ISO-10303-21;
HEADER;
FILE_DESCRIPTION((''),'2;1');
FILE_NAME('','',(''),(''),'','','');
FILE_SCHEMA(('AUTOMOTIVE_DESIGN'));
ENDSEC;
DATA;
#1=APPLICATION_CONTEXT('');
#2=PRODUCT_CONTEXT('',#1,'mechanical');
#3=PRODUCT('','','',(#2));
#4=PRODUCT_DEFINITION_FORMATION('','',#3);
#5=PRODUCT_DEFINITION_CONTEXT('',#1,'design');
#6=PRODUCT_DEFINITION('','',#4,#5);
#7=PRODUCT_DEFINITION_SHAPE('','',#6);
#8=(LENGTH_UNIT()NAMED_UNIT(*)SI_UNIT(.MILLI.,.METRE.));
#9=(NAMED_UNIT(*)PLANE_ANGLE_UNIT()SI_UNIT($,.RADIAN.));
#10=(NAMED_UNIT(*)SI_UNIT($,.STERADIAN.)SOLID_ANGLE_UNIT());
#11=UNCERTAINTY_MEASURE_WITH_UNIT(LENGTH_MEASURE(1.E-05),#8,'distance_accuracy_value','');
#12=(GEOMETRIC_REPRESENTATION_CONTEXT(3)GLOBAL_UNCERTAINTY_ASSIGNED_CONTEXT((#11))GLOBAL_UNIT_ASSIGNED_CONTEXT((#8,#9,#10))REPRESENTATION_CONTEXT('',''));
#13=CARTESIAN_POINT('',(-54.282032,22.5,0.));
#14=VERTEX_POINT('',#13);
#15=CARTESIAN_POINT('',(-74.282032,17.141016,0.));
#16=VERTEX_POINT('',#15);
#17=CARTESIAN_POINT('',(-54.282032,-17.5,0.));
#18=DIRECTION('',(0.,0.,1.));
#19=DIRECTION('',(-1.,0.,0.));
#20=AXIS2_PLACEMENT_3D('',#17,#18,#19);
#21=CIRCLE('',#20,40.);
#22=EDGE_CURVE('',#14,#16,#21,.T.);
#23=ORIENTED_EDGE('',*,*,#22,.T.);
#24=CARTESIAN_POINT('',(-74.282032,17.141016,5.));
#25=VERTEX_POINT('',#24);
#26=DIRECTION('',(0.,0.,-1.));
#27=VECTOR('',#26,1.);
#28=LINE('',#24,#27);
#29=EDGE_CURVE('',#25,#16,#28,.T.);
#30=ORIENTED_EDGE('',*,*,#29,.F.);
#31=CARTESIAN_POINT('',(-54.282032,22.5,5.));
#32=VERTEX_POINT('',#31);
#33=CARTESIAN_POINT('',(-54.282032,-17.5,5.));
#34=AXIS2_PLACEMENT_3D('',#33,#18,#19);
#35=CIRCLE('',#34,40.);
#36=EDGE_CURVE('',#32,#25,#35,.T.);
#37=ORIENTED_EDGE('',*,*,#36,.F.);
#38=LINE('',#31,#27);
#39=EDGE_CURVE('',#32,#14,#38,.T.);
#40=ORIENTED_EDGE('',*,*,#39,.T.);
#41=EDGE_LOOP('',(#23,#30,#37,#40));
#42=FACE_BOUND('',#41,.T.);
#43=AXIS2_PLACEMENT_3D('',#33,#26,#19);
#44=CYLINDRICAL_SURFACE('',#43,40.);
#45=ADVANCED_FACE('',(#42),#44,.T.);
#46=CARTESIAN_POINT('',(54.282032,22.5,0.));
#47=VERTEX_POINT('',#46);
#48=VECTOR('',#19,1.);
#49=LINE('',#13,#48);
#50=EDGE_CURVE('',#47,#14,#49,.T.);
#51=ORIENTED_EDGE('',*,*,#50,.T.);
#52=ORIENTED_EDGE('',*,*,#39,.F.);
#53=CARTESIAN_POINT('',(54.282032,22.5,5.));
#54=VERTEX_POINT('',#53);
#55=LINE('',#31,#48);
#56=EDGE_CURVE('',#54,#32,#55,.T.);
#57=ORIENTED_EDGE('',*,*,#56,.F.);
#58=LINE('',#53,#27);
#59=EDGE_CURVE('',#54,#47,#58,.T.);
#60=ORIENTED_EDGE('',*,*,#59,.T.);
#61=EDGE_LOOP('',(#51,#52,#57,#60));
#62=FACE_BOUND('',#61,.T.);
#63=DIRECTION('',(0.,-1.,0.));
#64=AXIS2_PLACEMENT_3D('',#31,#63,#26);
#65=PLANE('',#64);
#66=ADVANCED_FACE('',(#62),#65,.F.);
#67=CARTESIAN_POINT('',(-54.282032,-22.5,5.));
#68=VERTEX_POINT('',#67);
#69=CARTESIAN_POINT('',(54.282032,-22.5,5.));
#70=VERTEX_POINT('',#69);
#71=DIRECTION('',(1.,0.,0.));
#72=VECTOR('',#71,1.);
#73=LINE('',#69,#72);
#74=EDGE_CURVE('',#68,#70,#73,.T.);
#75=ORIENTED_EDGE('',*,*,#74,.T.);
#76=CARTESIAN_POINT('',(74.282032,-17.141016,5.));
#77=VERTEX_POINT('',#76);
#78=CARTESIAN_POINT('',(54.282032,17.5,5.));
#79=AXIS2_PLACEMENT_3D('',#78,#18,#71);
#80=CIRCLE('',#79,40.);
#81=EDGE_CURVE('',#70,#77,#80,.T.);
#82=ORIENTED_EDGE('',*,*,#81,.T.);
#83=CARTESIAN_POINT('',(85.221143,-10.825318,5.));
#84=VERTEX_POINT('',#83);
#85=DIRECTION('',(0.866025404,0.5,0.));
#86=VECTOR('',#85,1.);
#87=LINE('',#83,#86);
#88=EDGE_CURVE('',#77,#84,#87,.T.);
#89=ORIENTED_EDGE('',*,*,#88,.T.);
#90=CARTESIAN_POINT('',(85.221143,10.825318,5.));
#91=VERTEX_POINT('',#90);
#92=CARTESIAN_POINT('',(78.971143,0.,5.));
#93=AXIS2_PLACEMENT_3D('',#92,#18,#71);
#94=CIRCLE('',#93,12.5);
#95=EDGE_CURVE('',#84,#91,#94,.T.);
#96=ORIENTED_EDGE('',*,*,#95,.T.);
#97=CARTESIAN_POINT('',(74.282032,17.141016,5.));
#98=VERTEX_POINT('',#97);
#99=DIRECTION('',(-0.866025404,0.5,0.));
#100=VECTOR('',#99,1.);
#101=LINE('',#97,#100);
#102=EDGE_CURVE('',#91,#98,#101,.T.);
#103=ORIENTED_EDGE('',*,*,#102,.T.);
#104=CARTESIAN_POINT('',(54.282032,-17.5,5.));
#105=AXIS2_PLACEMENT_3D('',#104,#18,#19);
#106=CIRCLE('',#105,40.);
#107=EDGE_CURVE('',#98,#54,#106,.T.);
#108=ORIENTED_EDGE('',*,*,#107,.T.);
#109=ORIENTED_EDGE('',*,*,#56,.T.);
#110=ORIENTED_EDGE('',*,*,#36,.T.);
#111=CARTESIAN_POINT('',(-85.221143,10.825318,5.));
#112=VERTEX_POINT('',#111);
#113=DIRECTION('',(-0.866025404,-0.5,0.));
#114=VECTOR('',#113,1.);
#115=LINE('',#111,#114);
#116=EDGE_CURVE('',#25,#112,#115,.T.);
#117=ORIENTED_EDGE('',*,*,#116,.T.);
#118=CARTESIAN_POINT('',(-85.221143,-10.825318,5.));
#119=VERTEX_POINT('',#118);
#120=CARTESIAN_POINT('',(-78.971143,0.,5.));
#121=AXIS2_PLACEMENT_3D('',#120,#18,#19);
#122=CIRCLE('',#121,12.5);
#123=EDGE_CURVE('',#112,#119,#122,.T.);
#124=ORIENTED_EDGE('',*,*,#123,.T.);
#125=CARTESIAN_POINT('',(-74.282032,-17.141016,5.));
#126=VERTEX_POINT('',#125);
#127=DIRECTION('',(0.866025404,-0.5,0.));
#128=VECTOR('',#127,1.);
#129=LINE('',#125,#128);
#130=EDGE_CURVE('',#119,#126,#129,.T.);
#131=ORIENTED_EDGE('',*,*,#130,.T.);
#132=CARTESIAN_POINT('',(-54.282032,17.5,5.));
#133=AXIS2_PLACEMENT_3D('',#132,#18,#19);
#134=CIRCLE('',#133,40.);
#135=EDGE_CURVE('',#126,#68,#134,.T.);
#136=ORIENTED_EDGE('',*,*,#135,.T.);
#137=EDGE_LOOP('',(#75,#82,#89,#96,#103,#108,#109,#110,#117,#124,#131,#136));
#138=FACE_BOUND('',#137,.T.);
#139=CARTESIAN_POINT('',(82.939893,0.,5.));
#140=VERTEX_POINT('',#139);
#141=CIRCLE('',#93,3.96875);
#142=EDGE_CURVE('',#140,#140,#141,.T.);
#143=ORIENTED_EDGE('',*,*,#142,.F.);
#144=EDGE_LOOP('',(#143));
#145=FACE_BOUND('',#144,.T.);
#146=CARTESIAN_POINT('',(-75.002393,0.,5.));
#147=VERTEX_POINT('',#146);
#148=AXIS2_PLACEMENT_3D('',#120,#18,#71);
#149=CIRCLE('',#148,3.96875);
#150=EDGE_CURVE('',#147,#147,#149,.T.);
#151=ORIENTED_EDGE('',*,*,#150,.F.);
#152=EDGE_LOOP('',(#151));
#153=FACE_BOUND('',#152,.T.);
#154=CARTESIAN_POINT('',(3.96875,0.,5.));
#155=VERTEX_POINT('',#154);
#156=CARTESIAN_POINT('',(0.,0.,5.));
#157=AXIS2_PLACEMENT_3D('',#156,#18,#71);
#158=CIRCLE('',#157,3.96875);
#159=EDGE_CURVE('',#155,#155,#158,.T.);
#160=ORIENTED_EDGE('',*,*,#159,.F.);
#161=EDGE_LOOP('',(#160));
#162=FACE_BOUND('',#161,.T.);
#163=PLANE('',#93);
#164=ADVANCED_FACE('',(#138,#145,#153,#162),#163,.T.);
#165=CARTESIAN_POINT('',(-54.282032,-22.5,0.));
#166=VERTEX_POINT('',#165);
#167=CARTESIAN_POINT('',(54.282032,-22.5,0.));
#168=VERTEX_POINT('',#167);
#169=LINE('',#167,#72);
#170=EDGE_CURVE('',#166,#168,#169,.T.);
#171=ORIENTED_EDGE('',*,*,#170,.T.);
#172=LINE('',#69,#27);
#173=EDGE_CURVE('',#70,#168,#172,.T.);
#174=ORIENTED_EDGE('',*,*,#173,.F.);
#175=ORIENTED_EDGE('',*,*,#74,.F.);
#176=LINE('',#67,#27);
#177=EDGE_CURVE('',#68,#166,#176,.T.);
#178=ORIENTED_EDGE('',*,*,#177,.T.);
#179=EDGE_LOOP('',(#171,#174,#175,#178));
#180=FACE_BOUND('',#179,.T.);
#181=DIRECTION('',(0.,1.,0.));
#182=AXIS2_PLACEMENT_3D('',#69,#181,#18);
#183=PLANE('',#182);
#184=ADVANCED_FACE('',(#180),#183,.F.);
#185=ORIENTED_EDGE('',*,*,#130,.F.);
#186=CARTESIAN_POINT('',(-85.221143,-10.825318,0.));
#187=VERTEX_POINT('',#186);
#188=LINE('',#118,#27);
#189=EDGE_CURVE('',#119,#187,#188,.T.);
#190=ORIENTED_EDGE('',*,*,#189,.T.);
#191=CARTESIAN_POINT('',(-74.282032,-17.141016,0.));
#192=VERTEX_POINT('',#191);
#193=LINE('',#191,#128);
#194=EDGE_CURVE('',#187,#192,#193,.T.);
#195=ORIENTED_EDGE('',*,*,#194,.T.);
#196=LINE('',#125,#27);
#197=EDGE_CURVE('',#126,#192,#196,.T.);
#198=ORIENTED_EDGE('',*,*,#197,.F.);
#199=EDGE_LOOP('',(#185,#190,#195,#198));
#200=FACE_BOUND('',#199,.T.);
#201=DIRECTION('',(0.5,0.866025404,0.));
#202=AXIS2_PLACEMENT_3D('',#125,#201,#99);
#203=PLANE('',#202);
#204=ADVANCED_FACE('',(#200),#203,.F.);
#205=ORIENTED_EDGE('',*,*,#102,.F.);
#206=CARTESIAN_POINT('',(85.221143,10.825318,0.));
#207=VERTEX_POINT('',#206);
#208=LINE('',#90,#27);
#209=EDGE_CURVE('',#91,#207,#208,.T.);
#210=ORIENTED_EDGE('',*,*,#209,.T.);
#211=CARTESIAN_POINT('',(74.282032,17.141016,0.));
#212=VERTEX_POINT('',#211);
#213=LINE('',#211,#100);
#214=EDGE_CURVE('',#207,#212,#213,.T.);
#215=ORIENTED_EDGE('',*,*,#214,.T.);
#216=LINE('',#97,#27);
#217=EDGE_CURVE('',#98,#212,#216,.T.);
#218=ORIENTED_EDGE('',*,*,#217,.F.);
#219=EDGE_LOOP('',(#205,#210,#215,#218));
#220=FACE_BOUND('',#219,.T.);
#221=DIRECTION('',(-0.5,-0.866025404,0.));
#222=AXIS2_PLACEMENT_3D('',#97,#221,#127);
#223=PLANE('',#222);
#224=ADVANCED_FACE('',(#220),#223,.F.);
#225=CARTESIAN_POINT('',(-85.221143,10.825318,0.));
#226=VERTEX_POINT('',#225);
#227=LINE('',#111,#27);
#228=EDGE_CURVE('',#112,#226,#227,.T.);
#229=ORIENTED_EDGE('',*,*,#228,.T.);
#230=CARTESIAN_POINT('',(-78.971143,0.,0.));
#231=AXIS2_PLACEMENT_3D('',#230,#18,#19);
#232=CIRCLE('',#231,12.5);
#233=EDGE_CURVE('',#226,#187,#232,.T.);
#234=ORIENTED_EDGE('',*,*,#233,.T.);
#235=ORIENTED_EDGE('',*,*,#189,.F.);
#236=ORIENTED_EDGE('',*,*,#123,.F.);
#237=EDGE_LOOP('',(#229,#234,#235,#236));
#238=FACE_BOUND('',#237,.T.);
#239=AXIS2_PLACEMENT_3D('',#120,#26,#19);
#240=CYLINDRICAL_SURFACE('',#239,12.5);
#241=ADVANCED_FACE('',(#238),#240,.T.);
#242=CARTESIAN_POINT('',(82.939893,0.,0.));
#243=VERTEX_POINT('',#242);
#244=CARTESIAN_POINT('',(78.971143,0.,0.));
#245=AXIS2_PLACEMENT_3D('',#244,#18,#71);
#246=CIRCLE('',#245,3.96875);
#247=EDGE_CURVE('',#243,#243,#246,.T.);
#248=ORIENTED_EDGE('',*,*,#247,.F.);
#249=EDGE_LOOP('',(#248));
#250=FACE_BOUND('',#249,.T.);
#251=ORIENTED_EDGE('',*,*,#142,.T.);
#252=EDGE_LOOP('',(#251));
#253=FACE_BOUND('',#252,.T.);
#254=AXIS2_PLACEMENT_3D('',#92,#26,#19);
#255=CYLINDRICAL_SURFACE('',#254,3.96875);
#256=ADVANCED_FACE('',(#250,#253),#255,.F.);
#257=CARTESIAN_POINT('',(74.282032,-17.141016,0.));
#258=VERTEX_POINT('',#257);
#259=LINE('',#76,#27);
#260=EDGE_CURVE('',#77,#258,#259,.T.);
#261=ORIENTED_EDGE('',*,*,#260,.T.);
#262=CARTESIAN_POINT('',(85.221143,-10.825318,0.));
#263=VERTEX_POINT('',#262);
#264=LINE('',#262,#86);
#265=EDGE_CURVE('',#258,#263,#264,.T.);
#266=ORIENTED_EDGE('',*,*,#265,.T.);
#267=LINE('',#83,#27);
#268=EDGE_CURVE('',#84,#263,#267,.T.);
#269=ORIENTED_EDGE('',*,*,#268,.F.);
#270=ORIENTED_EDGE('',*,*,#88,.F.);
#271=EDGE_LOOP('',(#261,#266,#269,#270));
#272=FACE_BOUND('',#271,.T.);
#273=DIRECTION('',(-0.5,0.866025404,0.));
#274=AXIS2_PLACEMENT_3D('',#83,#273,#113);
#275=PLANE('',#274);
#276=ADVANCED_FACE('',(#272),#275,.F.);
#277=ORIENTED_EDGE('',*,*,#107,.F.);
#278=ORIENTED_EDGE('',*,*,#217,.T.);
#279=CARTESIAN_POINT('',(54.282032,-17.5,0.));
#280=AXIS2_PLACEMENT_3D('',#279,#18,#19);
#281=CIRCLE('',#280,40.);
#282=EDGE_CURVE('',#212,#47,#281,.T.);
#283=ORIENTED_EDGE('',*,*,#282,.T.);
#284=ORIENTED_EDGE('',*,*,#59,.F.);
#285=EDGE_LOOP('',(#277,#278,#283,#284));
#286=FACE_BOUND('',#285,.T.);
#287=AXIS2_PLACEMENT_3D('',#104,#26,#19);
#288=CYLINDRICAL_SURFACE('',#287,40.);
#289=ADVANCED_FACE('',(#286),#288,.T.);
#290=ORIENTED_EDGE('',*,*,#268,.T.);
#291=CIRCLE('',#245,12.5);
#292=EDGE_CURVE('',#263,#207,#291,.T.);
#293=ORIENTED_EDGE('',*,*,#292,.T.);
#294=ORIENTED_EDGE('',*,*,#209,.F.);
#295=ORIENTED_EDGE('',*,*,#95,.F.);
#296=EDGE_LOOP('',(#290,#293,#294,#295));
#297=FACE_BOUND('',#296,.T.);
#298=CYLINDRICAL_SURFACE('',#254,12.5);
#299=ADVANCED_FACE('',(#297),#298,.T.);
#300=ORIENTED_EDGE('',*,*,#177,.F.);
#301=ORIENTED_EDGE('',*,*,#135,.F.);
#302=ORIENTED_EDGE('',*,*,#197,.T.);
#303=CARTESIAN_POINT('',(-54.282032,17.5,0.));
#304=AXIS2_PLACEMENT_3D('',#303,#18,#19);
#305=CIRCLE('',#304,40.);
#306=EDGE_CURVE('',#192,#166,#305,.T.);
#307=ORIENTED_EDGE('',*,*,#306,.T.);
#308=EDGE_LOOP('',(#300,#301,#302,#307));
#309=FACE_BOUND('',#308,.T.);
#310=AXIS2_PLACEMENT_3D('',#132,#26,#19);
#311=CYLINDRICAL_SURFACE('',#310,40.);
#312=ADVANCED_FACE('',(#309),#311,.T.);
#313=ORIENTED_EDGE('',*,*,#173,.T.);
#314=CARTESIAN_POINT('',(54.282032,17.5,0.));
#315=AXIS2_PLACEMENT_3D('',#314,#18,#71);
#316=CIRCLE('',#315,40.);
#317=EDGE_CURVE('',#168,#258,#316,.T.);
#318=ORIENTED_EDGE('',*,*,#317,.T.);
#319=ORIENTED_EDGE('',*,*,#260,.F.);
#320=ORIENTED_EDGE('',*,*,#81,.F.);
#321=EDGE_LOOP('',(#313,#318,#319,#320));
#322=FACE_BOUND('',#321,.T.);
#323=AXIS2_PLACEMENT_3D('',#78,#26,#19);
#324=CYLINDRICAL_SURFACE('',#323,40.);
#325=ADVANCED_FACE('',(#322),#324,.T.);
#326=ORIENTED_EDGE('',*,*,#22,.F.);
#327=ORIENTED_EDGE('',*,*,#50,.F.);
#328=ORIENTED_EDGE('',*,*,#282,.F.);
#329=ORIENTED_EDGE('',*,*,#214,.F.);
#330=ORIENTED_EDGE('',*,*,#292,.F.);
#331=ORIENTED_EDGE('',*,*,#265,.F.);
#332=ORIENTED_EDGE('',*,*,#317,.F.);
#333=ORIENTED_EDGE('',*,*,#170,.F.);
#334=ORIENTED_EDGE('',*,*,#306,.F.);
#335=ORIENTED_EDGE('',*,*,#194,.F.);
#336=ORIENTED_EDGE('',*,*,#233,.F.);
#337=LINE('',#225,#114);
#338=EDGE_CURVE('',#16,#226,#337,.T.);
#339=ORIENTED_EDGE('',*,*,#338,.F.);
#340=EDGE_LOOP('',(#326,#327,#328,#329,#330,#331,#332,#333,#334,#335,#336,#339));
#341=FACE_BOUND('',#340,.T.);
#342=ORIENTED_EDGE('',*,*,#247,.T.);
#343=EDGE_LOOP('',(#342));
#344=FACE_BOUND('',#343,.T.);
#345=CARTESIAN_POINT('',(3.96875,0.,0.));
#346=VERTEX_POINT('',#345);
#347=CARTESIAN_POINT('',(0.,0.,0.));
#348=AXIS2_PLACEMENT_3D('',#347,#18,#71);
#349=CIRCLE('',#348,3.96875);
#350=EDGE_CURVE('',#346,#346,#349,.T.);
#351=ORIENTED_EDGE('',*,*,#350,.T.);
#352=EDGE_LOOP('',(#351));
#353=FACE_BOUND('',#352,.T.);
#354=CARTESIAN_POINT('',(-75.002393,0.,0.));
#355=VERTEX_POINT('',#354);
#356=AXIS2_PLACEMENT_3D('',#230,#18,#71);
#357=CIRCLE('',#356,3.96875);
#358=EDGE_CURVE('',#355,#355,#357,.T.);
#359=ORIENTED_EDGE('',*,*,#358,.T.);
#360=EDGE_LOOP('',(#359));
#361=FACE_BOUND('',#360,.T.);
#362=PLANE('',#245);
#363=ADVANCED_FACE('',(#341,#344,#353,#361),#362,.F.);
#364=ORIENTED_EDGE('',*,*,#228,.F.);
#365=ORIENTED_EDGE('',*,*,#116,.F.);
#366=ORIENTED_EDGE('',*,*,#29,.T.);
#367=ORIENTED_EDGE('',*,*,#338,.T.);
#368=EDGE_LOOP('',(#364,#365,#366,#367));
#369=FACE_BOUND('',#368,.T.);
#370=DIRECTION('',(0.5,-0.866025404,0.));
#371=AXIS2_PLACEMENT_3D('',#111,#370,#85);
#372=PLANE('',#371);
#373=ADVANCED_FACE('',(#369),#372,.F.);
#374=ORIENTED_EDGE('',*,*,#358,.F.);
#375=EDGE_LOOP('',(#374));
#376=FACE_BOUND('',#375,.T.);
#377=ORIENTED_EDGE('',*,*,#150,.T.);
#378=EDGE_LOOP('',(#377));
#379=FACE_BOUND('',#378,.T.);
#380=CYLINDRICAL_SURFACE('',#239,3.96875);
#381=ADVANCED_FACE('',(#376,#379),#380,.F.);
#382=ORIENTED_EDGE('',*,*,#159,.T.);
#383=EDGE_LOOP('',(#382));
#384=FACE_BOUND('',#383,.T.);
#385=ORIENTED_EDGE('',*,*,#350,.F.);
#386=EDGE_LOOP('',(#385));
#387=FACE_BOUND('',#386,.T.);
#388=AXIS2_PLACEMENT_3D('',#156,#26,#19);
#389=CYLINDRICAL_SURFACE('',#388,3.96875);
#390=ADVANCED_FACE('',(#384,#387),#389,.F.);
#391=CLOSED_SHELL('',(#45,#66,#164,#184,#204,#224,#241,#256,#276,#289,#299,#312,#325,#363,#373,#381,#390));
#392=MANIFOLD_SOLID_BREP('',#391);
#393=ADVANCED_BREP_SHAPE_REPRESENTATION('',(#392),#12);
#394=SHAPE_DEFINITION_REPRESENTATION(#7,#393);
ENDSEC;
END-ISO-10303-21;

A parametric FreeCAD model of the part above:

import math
import FreeCAD as App
import Part
import Sketcher
from FreeCAD import Vector
Q = App.Units.Quantity

doc = App.newDocument("Part")
params = doc.addObject("Spreadsheet::Sheet", "Params")
for row, (alias, value) in enumerate([
    ("sketch1_radius", "40 mm"),
    ("sketch1_radius2", "12.5 mm"),
    ("pad1_length", "5 mm"),
], start=1):
    params.set(f"A{row}", alias)
    params.set(f"B{row}", "=" + value)
    params.setAlias(f"B{row}", alias)

body = doc.addObject("PartDesign::Body", "Body")

# Sketch on XY plane
sketch1 = body.newObject("Sketcher::SketchObject", "Sketch")
sketch1.AttachmentSupport = (doc.getObject("XY_Plane"), [""])
sketch1.MapMode = "FlatFace"
sketch1.addGeometry([
    Part.LineSegment(Vector(54.3, 22.5, 0), Vector(-54.3, 22.5, 0)),  # 0
    Part.ArcOfCircle(Part.Circle(Vector(-54.3, -17.5, 0), Vector(0, 0, 1), 40), math.radians(90), math.radians(120)),  # 1
    Part.LineSegment(Vector(-74.3, 17.1, 0), Vector(-85.2, 10.8, 0)),  # 2
    Part.ArcOfCircle(Part.Circle(Vector(-79, 0, 0), Vector(0, 0, 1), 12.5), math.radians(120), math.radians(240)),  # 3
    Part.LineSegment(Vector(-85.2, -10.8, 0), Vector(-74.3, -17.1, 0)),  # 4
    Part.ArcOfCircle(Part.Circle(Vector(-54.3, 17.5, 0), Vector(0, 0, 1), 40), math.radians(-120), math.radians(-90)),  # 5
    Part.LineSegment(Vector(-54.3, -22.5, 0), Vector(54.3, -22.5, 0)),  # 6
    Part.ArcOfCircle(Part.Circle(Vector(54.3, 17.5, 0), Vector(0, 0, 1), 40), math.radians(-90), math.radians(-60)),  # 7
    Part.LineSegment(Vector(74.3, -17.1, 0), Vector(85.2, -10.8, 0)),  # 8
    Part.ArcOfCircle(Part.Circle(Vector(79, 0, 0), Vector(0, 0, 1), 12.5), math.radians(-60), math.radians(60)),  # 9
    Part.LineSegment(Vector(85.2, 10.8, 0), Vector(74.3, 17.1, 0)),  # 10
    Part.ArcOfCircle(Part.Circle(Vector(54.3, -17.5, 0), Vector(0, 0, 1), 40), math.radians(60), math.radians(90)),  # 11
    Part.Circle(Vector(79, 0, 0), Vector(0, 0, 1), 4),  # 12
    Part.Circle(Vector(0, 0, 0), Vector(0, 0, 1), 4),  # 13
    Part.Circle(Vector(-79, 0, 0), Vector(0, 0, 1), 4),  # 14
], False)
sketch1.addConstraint([
    Sketcher.Constraint("Tangent", 0, 2, 1, 1),
    Sketcher.Constraint("Tangent", 1, 2, 2, 1),
    Sketcher.Constraint("Tangent", 2, 2, 3, 1),
    Sketcher.Constraint("Tangent", 3, 2, 4, 1),
    Sketcher.Constraint("Tangent", 4, 2, 5, 1),
    Sketcher.Constraint("Tangent", 5, 2, 6, 1),
    Sketcher.Constraint("Tangent", 6, 2, 7, 1),
    Sketcher.Constraint("Tangent", 7, 2, 8, 1),
    Sketcher.Constraint("Tangent", 8, 2, 9, 1),
    Sketcher.Constraint("Tangent", 9, 2, 10, 1),
    Sketcher.Constraint("Tangent", 10, 2, 11, 1),
    Sketcher.Constraint("Tangent", 11, 2, 0, 1),
    Sketcher.Constraint("Horizontal", 0),
    Sketcher.Constraint("Horizontal", 6),
    Sketcher.Constraint("Coincident", 13, 3, -1, 1),
    Sketcher.Constraint("Coincident", 12, 3, 9, 3),
    Sketcher.Constraint("Coincident", 14, 3, 3, 3),
    Sketcher.Constraint("Equal", 1, 5),
    Sketcher.Constraint("Equal", 5, 7),
    Sketcher.Constraint("Equal", 3, 9),
    Sketcher.Constraint("Equal", 7, 11),
    Sketcher.Constraint("Equal", 12, 13),
    Sketcher.Constraint("Equal", 13, 14),
    Sketcher.Constraint("Symmetric", 1, 3, 7, 3, -1, 1),
    Sketcher.Constraint("Symmetric", 3, 3, 9, 3, -1, 1),
    Sketcher.Constraint("Symmetric", 4, 2, 7, 2, -2),
    Sketcher.Constraint("Parallel", 4, 10),
    Sketcher.Constraint("Radius", 1, Q("40 mm")),
    Sketcher.Constraint("Radius", 3, Q("12.5 mm")),
    Sketcher.Constraint("Angle", 2, Q("-150 deg")),
    Sketcher.Constraint("DistanceY", 1, 3, 5, 3, Q("35 mm")),
    Sketcher.Constraint("Diameter", 12, Q("7.9375 mm")),
    Sketcher.Constraint("DistanceX", 0, 2, 0, 1, Q("108.564065 mm")),
])
sketch1.setExpression("Constraints[27]", "Params.sketch1_radius")
sketch1.setExpression("Constraints[28]", "Params.sketch1_radius2")
pad1 = body.newObject("PartDesign::Pad", "Pad")
pad1.Profile = sketch1
pad1.setExpression("Length", "Params.pad1_length")

doc.recompute()
